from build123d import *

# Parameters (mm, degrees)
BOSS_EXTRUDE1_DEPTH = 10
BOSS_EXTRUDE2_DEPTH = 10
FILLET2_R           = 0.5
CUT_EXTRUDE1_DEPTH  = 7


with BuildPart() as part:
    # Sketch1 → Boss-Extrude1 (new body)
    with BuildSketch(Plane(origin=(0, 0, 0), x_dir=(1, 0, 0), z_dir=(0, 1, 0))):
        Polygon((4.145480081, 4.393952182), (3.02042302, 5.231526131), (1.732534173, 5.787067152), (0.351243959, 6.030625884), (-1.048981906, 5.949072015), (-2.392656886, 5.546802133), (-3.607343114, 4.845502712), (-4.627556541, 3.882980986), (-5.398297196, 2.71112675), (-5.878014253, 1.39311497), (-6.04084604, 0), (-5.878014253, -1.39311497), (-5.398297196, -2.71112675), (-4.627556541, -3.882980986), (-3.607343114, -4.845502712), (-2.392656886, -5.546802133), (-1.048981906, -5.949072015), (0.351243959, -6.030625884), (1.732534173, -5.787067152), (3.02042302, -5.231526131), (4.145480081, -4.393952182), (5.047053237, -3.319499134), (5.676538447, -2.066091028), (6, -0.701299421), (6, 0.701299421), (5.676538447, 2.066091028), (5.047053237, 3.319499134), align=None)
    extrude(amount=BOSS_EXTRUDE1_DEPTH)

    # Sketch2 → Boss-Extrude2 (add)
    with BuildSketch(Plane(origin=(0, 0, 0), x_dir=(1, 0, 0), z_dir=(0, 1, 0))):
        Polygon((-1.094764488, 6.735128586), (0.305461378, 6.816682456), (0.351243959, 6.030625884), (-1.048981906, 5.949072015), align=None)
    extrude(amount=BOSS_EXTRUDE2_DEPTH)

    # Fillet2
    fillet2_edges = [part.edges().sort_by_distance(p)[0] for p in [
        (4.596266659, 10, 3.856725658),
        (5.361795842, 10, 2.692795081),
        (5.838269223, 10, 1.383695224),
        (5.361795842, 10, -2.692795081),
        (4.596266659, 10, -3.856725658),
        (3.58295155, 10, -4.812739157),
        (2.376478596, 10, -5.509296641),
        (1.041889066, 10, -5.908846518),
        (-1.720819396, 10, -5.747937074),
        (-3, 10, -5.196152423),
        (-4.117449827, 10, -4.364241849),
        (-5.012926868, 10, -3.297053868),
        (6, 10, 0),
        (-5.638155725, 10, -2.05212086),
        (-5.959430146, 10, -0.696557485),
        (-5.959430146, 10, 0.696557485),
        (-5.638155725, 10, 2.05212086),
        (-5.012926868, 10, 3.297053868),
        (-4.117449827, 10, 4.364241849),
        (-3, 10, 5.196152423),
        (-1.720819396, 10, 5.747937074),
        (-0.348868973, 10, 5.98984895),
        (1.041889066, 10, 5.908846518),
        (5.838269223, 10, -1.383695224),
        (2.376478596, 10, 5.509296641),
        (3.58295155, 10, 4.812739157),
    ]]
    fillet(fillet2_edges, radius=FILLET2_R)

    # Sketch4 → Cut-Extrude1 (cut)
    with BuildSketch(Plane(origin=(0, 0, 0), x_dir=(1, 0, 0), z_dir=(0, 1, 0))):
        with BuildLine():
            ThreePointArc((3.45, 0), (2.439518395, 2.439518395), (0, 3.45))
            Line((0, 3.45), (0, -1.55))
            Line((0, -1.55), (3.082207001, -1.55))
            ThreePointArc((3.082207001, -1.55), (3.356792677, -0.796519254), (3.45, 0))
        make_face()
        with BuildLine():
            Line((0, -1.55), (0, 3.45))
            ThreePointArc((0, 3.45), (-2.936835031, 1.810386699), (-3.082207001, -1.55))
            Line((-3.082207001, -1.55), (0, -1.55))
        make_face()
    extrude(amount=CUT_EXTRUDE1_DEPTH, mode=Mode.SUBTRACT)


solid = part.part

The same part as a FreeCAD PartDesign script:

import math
import FreeCAD as App
import Part
import Sketcher

V = App.Vector
Q = App.Units.Quantity


def edges_at(feature, points):
    """Names of the edges that pass closest to the given points."""
    edges = feature.Shape.Edges
    near = lambda p: min(range(len(edges)), key=lambda i: edges[i].distToShape(Part.Vertex(*p))[0])
    return sorted({f"Edge{near(p) + 1}" for p in points})


def add_polygon(sketch, points):
    """Adds a closed chain of lines whose ends are joined by coincident constraints."""
    first, n = sketch.GeometryCount, len(points)
    for a, b in zip(points, points[1:] + points[:1]):
        sketch.addGeometry(Part.LineSegment(App.Vector(*a, 0), App.Vector(*b, 0)), False)
    for i in range(n):
        sketch.addConstraint(Sketcher.Constraint("Coincident", first + i, 2, first + (i + 1) % n, 1))

doc = App.newDocument("Part")
body = doc.addObject("PartDesign::Body", "Body")

sketch1 = body.newObject("Sketcher::SketchObject", "Sketch")
sketch1.AttachmentSupport = (doc.getObject("XZ_Plane"), [""])
sketch1.MapMode = "FlatFace"
add_polygon(sketch1, [(4.1, -4.4), (3, -5.2), (1.7, -5.8), (0.4, -6), (-1, -5.9), (-2.4, -5.5), (-3.6, -4.8), (-4.6, -3.9), (-5.4, -2.7), (-5.9, -1.4), (-6, 0), (-5.9, 1.4), (-5.4, 2.7), (-4.6, 3.9), (-3.6, 4.8), (-2.4, 5.5), (-1, 5.9), (0.4, 6), (1.7, 5.8), (3, 5.2), (4.1, 4.4), (5, 3.3), (5.7, 2.1), (6, 0.7), (6, -0.7), (5.7, -2.1), (5, -3.3)])
sketch1.addConstraint([
    Sketcher.Constraint("Vertical", 23),
    Sketcher.Constraint("Symmetric", 8, 2, 10, 2, -1),
    Sketcher.Constraint("Symmetric", 7, 2, 11, 2, -1),
    Sketcher.Constraint("Symmetric", 6, 2, 12, 2, -1),
    Sketcher.Constraint("Symmetric", 5, 2, 13, 2, -1),
    Sketcher.Constraint("Symmetric", 4, 2, 14, 2, -1),
    Sketcher.Constraint("Symmetric", 3, 2, 15, 2, -1),
    Sketcher.Constraint("Symmetric", 2, 2, 16, 2, -1),
    Sketcher.Constraint("Symmetric", 1, 2, 17, 2, -1),
    Sketcher.Constraint("Symmetric", 0, 2, 18, 2, -1),
    Sketcher.Constraint("Symmetric", 21, 2, 24, 2, -1),
    Sketcher.Constraint("Symmetric", 20, 2, 25, 2, -1),
    Sketcher.Constraint("Symmetric", 19, 2, 26, 2, -1),
    Sketcher.Constraint("PointOnObject", 9, 2, -1),
    Sketcher.Constraint("Equal", 0, 1),
    Sketcher.Constraint("Equal", 1, 2),
    Sketcher.Constraint("Equal", 2, 3),
    Sketcher.Constraint("Equal", 3, 4),
    Sketcher.Constraint("Equal", 4, 5),
    Sketcher.Constraint("Equal", 5, 6),
    Sketcher.Constraint("Equal", 6, 7),
    Sketcher.Constraint("Equal", 7, 8),
    Sketcher.Constraint("Equal", 8, 9),
    Sketcher.Constraint("Equal", 19, 20),
    Sketcher.Constraint("Equal", 20, 21),
    Sketcher.Constraint("Equal", 21, 22),
    Sketcher.Constraint("Equal", 22, 24),
    Sketcher.Constraint("Angle", 2, Q("-170 deg")),
    Sketcher.Constraint("Angle", 5, Q("150 deg")),
    Sketcher.Constraint("Angle", 8, Q("110 deg")),
    Sketcher.Constraint("Angle", 20, Q("-50 deg")),
    Sketcher.Constraint("DistanceX", -1, 1, 22, 2, Q("6 mm")),
    Sketcher.Constraint("DistanceY", 23, 2, 23, 1, Q("1.402599 mm")),
    Sketcher.Constraint("Distance", 0, Q("1.402599 mm")),
    Sketcher.Constraint("DistanceY", -1, 1, 20, 2, Q("3.319499 mm")),
    Sketcher.Constraint("DistanceY", 2, 2, 0, 2, Q("0.7991 mm")),
    Sketcher.Constraint("DistanceX", 4, 2, 2, 2, Q("2.743901 mm")),
    Sketcher.Constraint("DistanceX", 6, 2, 4, 2, Q("2.2349 mm")),
    Sketcher.Constraint("DistanceY", 2, 2, 7, 2, Q("3.319499 mm")),
    Sketcher.Constraint("DistanceX", 3, 2, -1, 1, Q("1.048982 mm")),
    Sketcher.Constraint("DistanceY", 6, 2, -1, 1, Q("3.882981 mm")),
    Sketcher.Constraint("DistanceX", -1, 1, 19, 2, Q("4.14548 mm")),
])
pad1 = body.newObject("PartDesign::Pad", "Pad")
pad1.Profile = sketch1
pad1.Length = 10
pad1.Reversed = True

sketch2 = body.newObject("Sketcher::SketchObject", "Sketch001")
sketch2.AttachmentSupport = (doc.getObject("XZ_Plane"), [""])
sketch2.MapMode = "FlatFace"
add_polygon(sketch2, [(0.3, -6.8), (-1.1, -6.7), (-1, -5.9), (0.4, -6)])
sketch2.addConstraint([
    Sketcher.Constraint("Perpendicular", 0, 1),
    Sketcher.Constraint("Perpendicular", 1, 2),
    Sketcher.Constraint("Perpendicular", 2, 3),
    Sketcher.Constraint("Distance", 0, Q("1.402599 mm")),
    Sketcher.Constraint("Distance", 1, Q("0.787389 mm")),
    Sketcher.Constraint("DistanceY", 0, 2, -1, 1, Q("6.735129 mm")),
    Sketcher.Constraint("DistanceX", 1, 2, -1, 1, Q("1.048982 mm")),
    Sketcher.Constraint("DistanceX", -1, 1, 3, 2, Q("0.305461 mm")),
])
pad2 = body.newObject("PartDesign::Pad", "Pad001")
pad2.Profile = sketch2
pad2.Length = 10
pad2.Reversed = True
doc.recompute()

fillet = body.newObject("PartDesign::Fillet", "Fillet")
fillet.Base = (pad2, edges_at(pad2, [
    (4.596, 10, 3.857),
    (5.362, 10, 2.693),
    (5.838, 10, 1.384),
    (5.362, 10, -2.693),
    (4.596, 10, -3.857),
    (3.583, 10, -4.813),
    (2.376, 10, -5.509),
    (1.042, 10, -5.909),
    (-1.721, 10, -5.748),
    (-3, 10, -5.196),
    (-4.117, 10, -4.364),
    (-5.013, 10, -3.297),
    (6, 10, 0),
    (-5.638, 10, -2.052),
    (-5.959, 10, -0.697),
    (-5.959, 10, 0.697),
    (-5.638, 10, 2.052),
    (-5.013, 10, 3.297),
    (-4.117, 10, 4.364),
    (-3, 10, 5.196),
    (-1.721, 10, 5.748),
    (-0.349, 10, 5.99),
    (1.042, 10, 5.909),
    (5.838, 10, -1.384),
    (2.376, 10, 5.509),
    (3.583, 10, 4.813),
]))
fillet.Radius = 0.5

sketch3 = body.newObject("Sketcher::SketchObject", "Sketch002")
sketch3.AttachmentSupport = (doc.getObject("XZ_Plane"), [""])
sketch3.MapMode = "FlatFace"
sketch3.addGeometry([
    Part.ArcOfCircle(Part.Circle(V(0, 0, 0), V(0, 0, 1), 3.5), math.radians(0), math.radians(27)),
    Part.ArcOfCircle(Part.Circle(V(0, 0, 0), V(0, 0, 1), 3.5), math.radians(-90), math.radians(0)),
    Part.ArcOfCircle(Part.Circle(V(0, 0, 0), V(0, 0, 1), 3.5), math.radians(153), math.radians(270)),
    Part.LineSegment(V(-3.1, 1.6, 0), V(3.1, 1.6, 0)),
], False)
sketch3.addConstraint([
    Sketcher.Constraint("Tangent", 0, 1, 1, 2),
    Sketcher.Constraint("Tangent", 1, 1, 2, 2),
    Sketcher.Constraint("Coincident", 2, 1, 3, 1),
    Sketcher.Constraint("Coincident", 3, 2, 0, 2),
    Sketcher.Constraint("Horizontal", 3),
    Sketcher.Constraint("Coincident", 0, 3, -1, 1),
    Sketcher.Constraint("Coincident", 2, 3, -1, 1),
    Sketcher.Constraint("PointOnObject", 0, 1, -1),
    Sketcher.Constraint("PointOnObject", 1, 1, -2),
    Sketcher.Constraint("Radius", 0, Q("3.45 mm")),
    Sketcher.Constraint("DistanceY", 1, 1, 2, 1, Q("5 mm")),
])
pocket1 = body.newObject("PartDesign::Pocket", "Pocket")
pocket1.Profile = sketch3
pocket1.Length = 7

doc.recompute()
